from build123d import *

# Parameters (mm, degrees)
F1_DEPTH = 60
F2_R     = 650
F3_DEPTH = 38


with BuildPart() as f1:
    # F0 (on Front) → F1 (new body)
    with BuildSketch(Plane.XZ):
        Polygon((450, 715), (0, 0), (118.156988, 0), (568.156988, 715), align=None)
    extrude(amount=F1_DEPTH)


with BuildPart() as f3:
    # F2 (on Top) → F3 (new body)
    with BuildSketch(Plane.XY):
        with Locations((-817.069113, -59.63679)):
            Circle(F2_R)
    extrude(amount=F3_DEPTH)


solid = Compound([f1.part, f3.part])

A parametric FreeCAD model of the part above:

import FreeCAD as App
import Part
import Sketcher


def add_polygon(sketch, points):
    """Adds a closed chain of lines whose ends are joined by coincident constraints."""
    first, n = sketch.GeometryCount, len(points)
    for a, b in zip(points, points[1:] + points[:1]):
        sketch.addGeometry(Part.LineSegment(App.Vector(*a, 0), App.Vector(*b, 0)), False)
    for i in range(n):
        sketch.addConstraint(Sketcher.Constraint("Coincident", first + i, 2, first + (i + 1) % n, 1))

doc = App.newDocument("Part")
body = doc.addObject("PartDesign::Body", "Body")

sketch1 = doc.addObject("Sketcher::SketchObject", "Sketch")
body.addObject(sketch1)
sketch1.AttachmentSupport = (doc.XZ_Plane, [""])
sketch1.MapMode = "FlatFace"
add_polygon(sketch1, [(450, 715), (0, 0), (118, 0), (568, 715)])
sketch1.addConstraint([
    Sketcher.Constraint("Horizontal", 1),
    Sketcher.Constraint("Horizontal", 3),
    Sketcher.Constraint("Coincident", 0, 2, -1, 1),
    Sketcher.Constraint("Parallel", 0, 2),
    Sketcher.Constraint("DistanceY", -1, 1, 2, 2, 715.0),
    Sketcher.Constraint("DistanceX", -1, 1, 3, 2, 450.0),
    Sketcher.Constraint("DistanceX", 1, 1, 1, 2, 118.156988),
])
pad1 = doc.addObject("PartDesign::Pad", "Pad")
body.addObject(pad1)
pad1.Profile = sketch1
pad1.Length = 60
body2 = doc.addObject("PartDesign::Body", "Body001")

sketch2 = doc.addObject("Sketcher::SketchObject", "Sketch001")
body2.addObject(sketch2)
sketch2.AttachmentSupport = (doc.getObject("XY_Plane001"), [""])
sketch2.MapMode = "FlatFace"
sketch2.addGeometry(Part.Circle(App.Vector(-817, -60, 0), App.Vector(0, 0, 1), 650), False)
sketch2.addConstraint([
    Sketcher.Constraint("Diameter", 0, 1300.0),
    Sketcher.Constraint("DistanceY", 0, 3, -1, 1, 59.63679),
    Sketcher.Constraint("DistanceX", 0, 3, -1, 1, 817.069113),
])
pad2 = doc.addObject("PartDesign::Pad", "Pad001")
body2.addObject(pad2)
pad2.Profile = sketch2
pad2.Length = 38

doc.recompute()
